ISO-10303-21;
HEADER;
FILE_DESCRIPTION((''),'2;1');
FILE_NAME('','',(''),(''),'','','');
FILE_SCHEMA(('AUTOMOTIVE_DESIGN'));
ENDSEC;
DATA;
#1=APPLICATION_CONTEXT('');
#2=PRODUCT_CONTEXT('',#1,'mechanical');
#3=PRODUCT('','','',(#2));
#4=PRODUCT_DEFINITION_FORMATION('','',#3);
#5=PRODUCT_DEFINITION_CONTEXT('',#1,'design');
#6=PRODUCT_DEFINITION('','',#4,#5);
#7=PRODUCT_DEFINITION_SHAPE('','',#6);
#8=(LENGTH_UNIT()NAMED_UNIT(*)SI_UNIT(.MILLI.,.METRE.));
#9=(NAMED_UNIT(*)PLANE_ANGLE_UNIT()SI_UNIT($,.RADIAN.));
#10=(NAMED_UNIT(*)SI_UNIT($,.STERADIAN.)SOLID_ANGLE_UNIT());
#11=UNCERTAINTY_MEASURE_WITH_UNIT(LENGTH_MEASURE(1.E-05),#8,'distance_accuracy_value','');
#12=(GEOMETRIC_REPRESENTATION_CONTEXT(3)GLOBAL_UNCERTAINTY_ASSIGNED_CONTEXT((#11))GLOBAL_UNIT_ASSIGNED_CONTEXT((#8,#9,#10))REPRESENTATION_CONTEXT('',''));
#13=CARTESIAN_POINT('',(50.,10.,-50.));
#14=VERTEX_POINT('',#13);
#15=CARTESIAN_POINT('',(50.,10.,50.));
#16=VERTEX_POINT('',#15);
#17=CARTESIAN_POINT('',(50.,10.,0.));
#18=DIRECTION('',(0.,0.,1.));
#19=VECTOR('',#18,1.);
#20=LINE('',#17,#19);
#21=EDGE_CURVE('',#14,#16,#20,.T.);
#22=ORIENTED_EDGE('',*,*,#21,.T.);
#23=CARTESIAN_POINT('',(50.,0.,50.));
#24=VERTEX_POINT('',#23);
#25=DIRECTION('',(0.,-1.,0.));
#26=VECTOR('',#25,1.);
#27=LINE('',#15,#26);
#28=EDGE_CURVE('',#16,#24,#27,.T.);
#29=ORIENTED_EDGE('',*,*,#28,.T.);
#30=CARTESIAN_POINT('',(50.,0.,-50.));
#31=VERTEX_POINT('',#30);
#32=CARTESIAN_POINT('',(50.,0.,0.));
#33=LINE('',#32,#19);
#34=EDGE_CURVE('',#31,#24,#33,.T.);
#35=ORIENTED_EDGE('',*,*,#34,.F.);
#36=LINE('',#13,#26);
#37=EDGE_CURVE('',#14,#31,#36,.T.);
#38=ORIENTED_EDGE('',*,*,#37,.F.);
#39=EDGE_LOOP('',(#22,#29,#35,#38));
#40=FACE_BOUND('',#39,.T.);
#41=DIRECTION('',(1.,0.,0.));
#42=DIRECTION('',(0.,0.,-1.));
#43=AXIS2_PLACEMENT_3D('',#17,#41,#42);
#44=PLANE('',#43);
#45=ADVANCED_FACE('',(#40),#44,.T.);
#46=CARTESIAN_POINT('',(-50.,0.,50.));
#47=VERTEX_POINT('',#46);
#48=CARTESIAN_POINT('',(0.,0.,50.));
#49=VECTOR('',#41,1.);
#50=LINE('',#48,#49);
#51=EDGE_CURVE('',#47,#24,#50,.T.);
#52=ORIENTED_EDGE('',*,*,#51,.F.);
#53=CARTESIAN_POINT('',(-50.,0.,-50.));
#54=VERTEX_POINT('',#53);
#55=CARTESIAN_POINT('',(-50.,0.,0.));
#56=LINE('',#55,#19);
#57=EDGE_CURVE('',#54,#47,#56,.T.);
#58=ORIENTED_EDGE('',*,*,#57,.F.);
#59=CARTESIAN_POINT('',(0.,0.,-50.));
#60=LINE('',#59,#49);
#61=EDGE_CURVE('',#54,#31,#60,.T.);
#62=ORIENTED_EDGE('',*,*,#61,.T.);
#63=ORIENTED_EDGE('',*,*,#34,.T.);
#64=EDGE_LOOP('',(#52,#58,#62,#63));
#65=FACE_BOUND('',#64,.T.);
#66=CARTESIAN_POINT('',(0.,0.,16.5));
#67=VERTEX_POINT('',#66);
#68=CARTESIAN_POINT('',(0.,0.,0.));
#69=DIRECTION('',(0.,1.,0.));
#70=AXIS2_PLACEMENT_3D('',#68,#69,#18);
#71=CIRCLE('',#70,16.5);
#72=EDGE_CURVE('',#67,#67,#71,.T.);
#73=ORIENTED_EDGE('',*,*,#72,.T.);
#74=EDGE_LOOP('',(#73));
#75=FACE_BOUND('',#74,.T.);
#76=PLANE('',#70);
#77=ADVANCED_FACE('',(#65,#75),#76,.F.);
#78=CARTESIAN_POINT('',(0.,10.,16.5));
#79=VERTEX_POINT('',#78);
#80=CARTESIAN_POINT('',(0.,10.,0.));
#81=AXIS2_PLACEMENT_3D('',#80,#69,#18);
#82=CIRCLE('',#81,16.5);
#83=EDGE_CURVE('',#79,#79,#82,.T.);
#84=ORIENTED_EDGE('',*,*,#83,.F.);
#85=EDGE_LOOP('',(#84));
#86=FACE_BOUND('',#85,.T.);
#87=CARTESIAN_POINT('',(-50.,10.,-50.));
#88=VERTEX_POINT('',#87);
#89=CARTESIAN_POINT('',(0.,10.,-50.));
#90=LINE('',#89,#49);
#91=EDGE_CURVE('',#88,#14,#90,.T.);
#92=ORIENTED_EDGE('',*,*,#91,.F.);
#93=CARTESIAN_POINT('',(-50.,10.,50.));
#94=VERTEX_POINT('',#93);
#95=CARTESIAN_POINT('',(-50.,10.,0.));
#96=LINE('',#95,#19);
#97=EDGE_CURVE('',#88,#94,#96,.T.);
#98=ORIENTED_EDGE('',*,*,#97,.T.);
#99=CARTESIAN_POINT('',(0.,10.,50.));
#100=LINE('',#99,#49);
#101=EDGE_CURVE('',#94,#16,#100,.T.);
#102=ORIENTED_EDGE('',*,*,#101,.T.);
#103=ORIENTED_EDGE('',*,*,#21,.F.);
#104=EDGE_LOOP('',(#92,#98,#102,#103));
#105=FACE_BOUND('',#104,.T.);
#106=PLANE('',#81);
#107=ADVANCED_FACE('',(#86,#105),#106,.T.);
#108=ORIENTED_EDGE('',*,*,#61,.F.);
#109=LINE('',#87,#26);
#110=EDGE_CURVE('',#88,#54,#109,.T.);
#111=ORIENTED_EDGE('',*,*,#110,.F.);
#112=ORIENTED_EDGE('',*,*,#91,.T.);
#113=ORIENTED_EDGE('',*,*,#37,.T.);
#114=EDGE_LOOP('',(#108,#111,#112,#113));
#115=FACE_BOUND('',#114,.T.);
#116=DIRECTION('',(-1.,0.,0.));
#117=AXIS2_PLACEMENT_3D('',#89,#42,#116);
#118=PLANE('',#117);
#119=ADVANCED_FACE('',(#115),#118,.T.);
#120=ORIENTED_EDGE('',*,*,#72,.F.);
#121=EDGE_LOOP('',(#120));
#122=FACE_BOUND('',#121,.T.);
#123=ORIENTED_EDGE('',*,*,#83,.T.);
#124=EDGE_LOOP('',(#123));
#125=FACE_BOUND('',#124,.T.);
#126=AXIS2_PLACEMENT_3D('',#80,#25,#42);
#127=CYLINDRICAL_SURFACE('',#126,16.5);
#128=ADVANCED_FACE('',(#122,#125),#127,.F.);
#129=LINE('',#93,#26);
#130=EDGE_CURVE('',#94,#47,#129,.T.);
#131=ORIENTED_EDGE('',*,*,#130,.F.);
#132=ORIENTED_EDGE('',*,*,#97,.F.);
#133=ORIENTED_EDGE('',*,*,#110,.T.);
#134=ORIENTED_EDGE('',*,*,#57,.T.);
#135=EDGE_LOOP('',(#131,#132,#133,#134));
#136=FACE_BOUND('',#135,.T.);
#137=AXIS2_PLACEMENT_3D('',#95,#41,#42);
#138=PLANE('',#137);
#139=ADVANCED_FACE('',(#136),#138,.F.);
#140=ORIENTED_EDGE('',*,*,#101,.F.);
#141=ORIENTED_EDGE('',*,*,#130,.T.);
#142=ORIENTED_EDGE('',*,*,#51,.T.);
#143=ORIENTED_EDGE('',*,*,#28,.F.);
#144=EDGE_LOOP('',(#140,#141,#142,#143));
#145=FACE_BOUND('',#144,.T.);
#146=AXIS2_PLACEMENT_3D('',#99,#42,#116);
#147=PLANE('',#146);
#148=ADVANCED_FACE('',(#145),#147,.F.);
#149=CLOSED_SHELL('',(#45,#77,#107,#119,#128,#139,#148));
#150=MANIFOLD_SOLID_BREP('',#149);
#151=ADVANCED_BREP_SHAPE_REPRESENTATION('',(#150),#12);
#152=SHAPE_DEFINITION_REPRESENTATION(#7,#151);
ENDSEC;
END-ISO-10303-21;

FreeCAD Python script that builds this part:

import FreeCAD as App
import Part
import Sketcher

V = App.Vector


def add_polygon(sketch, points):
    """Adds a closed chain of lines whose ends are joined by coincident constraints."""
    first, n = sketch.GeometryCount, len(points)
    for a, b in zip(points, points[1:] + points[:1]):
        sketch.addGeometry(Part.LineSegment(App.Vector(*a, 0), App.Vector(*b, 0)), False)
    for i in range(n):
        sketch.addConstraint(Sketcher.Constraint("Coincident", first + i, 2, first + (i + 1) % n, 1))

doc = App.newDocument("Part")
params = doc.addObject("Spreadsheet::Sheet", "Params")
for row, (alias, value) in enumerate([
    ("sketch1_diameter", "33 mm"),
    ("sketch1_width", "100 mm"),
    ("pad1_length", "10 mm"),
], start=1):
    params.set(f"A{row}", alias)
    params.set(f"B{row}", "=" + value)
    params.setAlias(f"B{row}", alias)

body = doc.addObject("PartDesign::Body", "Body")

sketch1 = body.newObject("Sketcher::SketchObject", "Sketch")
sketch1.AttachmentSupport = (doc.getObject("XZ_Plane"), [""])
sketch1.MapMode = "FlatFace"
add_polygon(sketch1, [(-50, -50), (-50, 50), (50, 50), (50, -50)])
sketch1.addGeometry(Part.Circle(V(0, 0, 0), V(0, 0, 1), 16), False)
sketch1.addConstraint(Sketcher.Constraint("Vertical", 0))
sketch1.addConstraint(Sketcher.Constraint("Horizontal", 1))
sketch1.addConstraint(Sketcher.Constraint("Vertical", 2))
sketch1.addConstraint(Sketcher.Constraint("Horizontal", 3))
sketch1.addConstraint(Sketcher.Constraint("Coincident", 4, 3, -1, 1))
sketch1.addConstraint(Sketcher.Constraint("Symmetric", 0, 2, 2, 2, -1, 1))
sketch1.addConstraint(Sketcher.Constraint("Equal", 3, 0))
sketch1.addConstraint(Sketcher.Constraint("Diameter", 4, 33.0))
sketch1.addConstraint(Sketcher.Constraint("DistanceX", 1, 1, 1, 2, 100.0))
sketch1.setExpression("Constraints[11]", "Params.sketch1_diameter")
sketch1.setExpression("Constraints[12]", "Params.sketch1_width")
pad1 = body.newObject("PartDesign::Pad", "Pad")
pad1.Profile = sketch1
pad1.setExpression("Length", "Params.pad1_length")
pad1.Reversed = True

doc.recompute()
